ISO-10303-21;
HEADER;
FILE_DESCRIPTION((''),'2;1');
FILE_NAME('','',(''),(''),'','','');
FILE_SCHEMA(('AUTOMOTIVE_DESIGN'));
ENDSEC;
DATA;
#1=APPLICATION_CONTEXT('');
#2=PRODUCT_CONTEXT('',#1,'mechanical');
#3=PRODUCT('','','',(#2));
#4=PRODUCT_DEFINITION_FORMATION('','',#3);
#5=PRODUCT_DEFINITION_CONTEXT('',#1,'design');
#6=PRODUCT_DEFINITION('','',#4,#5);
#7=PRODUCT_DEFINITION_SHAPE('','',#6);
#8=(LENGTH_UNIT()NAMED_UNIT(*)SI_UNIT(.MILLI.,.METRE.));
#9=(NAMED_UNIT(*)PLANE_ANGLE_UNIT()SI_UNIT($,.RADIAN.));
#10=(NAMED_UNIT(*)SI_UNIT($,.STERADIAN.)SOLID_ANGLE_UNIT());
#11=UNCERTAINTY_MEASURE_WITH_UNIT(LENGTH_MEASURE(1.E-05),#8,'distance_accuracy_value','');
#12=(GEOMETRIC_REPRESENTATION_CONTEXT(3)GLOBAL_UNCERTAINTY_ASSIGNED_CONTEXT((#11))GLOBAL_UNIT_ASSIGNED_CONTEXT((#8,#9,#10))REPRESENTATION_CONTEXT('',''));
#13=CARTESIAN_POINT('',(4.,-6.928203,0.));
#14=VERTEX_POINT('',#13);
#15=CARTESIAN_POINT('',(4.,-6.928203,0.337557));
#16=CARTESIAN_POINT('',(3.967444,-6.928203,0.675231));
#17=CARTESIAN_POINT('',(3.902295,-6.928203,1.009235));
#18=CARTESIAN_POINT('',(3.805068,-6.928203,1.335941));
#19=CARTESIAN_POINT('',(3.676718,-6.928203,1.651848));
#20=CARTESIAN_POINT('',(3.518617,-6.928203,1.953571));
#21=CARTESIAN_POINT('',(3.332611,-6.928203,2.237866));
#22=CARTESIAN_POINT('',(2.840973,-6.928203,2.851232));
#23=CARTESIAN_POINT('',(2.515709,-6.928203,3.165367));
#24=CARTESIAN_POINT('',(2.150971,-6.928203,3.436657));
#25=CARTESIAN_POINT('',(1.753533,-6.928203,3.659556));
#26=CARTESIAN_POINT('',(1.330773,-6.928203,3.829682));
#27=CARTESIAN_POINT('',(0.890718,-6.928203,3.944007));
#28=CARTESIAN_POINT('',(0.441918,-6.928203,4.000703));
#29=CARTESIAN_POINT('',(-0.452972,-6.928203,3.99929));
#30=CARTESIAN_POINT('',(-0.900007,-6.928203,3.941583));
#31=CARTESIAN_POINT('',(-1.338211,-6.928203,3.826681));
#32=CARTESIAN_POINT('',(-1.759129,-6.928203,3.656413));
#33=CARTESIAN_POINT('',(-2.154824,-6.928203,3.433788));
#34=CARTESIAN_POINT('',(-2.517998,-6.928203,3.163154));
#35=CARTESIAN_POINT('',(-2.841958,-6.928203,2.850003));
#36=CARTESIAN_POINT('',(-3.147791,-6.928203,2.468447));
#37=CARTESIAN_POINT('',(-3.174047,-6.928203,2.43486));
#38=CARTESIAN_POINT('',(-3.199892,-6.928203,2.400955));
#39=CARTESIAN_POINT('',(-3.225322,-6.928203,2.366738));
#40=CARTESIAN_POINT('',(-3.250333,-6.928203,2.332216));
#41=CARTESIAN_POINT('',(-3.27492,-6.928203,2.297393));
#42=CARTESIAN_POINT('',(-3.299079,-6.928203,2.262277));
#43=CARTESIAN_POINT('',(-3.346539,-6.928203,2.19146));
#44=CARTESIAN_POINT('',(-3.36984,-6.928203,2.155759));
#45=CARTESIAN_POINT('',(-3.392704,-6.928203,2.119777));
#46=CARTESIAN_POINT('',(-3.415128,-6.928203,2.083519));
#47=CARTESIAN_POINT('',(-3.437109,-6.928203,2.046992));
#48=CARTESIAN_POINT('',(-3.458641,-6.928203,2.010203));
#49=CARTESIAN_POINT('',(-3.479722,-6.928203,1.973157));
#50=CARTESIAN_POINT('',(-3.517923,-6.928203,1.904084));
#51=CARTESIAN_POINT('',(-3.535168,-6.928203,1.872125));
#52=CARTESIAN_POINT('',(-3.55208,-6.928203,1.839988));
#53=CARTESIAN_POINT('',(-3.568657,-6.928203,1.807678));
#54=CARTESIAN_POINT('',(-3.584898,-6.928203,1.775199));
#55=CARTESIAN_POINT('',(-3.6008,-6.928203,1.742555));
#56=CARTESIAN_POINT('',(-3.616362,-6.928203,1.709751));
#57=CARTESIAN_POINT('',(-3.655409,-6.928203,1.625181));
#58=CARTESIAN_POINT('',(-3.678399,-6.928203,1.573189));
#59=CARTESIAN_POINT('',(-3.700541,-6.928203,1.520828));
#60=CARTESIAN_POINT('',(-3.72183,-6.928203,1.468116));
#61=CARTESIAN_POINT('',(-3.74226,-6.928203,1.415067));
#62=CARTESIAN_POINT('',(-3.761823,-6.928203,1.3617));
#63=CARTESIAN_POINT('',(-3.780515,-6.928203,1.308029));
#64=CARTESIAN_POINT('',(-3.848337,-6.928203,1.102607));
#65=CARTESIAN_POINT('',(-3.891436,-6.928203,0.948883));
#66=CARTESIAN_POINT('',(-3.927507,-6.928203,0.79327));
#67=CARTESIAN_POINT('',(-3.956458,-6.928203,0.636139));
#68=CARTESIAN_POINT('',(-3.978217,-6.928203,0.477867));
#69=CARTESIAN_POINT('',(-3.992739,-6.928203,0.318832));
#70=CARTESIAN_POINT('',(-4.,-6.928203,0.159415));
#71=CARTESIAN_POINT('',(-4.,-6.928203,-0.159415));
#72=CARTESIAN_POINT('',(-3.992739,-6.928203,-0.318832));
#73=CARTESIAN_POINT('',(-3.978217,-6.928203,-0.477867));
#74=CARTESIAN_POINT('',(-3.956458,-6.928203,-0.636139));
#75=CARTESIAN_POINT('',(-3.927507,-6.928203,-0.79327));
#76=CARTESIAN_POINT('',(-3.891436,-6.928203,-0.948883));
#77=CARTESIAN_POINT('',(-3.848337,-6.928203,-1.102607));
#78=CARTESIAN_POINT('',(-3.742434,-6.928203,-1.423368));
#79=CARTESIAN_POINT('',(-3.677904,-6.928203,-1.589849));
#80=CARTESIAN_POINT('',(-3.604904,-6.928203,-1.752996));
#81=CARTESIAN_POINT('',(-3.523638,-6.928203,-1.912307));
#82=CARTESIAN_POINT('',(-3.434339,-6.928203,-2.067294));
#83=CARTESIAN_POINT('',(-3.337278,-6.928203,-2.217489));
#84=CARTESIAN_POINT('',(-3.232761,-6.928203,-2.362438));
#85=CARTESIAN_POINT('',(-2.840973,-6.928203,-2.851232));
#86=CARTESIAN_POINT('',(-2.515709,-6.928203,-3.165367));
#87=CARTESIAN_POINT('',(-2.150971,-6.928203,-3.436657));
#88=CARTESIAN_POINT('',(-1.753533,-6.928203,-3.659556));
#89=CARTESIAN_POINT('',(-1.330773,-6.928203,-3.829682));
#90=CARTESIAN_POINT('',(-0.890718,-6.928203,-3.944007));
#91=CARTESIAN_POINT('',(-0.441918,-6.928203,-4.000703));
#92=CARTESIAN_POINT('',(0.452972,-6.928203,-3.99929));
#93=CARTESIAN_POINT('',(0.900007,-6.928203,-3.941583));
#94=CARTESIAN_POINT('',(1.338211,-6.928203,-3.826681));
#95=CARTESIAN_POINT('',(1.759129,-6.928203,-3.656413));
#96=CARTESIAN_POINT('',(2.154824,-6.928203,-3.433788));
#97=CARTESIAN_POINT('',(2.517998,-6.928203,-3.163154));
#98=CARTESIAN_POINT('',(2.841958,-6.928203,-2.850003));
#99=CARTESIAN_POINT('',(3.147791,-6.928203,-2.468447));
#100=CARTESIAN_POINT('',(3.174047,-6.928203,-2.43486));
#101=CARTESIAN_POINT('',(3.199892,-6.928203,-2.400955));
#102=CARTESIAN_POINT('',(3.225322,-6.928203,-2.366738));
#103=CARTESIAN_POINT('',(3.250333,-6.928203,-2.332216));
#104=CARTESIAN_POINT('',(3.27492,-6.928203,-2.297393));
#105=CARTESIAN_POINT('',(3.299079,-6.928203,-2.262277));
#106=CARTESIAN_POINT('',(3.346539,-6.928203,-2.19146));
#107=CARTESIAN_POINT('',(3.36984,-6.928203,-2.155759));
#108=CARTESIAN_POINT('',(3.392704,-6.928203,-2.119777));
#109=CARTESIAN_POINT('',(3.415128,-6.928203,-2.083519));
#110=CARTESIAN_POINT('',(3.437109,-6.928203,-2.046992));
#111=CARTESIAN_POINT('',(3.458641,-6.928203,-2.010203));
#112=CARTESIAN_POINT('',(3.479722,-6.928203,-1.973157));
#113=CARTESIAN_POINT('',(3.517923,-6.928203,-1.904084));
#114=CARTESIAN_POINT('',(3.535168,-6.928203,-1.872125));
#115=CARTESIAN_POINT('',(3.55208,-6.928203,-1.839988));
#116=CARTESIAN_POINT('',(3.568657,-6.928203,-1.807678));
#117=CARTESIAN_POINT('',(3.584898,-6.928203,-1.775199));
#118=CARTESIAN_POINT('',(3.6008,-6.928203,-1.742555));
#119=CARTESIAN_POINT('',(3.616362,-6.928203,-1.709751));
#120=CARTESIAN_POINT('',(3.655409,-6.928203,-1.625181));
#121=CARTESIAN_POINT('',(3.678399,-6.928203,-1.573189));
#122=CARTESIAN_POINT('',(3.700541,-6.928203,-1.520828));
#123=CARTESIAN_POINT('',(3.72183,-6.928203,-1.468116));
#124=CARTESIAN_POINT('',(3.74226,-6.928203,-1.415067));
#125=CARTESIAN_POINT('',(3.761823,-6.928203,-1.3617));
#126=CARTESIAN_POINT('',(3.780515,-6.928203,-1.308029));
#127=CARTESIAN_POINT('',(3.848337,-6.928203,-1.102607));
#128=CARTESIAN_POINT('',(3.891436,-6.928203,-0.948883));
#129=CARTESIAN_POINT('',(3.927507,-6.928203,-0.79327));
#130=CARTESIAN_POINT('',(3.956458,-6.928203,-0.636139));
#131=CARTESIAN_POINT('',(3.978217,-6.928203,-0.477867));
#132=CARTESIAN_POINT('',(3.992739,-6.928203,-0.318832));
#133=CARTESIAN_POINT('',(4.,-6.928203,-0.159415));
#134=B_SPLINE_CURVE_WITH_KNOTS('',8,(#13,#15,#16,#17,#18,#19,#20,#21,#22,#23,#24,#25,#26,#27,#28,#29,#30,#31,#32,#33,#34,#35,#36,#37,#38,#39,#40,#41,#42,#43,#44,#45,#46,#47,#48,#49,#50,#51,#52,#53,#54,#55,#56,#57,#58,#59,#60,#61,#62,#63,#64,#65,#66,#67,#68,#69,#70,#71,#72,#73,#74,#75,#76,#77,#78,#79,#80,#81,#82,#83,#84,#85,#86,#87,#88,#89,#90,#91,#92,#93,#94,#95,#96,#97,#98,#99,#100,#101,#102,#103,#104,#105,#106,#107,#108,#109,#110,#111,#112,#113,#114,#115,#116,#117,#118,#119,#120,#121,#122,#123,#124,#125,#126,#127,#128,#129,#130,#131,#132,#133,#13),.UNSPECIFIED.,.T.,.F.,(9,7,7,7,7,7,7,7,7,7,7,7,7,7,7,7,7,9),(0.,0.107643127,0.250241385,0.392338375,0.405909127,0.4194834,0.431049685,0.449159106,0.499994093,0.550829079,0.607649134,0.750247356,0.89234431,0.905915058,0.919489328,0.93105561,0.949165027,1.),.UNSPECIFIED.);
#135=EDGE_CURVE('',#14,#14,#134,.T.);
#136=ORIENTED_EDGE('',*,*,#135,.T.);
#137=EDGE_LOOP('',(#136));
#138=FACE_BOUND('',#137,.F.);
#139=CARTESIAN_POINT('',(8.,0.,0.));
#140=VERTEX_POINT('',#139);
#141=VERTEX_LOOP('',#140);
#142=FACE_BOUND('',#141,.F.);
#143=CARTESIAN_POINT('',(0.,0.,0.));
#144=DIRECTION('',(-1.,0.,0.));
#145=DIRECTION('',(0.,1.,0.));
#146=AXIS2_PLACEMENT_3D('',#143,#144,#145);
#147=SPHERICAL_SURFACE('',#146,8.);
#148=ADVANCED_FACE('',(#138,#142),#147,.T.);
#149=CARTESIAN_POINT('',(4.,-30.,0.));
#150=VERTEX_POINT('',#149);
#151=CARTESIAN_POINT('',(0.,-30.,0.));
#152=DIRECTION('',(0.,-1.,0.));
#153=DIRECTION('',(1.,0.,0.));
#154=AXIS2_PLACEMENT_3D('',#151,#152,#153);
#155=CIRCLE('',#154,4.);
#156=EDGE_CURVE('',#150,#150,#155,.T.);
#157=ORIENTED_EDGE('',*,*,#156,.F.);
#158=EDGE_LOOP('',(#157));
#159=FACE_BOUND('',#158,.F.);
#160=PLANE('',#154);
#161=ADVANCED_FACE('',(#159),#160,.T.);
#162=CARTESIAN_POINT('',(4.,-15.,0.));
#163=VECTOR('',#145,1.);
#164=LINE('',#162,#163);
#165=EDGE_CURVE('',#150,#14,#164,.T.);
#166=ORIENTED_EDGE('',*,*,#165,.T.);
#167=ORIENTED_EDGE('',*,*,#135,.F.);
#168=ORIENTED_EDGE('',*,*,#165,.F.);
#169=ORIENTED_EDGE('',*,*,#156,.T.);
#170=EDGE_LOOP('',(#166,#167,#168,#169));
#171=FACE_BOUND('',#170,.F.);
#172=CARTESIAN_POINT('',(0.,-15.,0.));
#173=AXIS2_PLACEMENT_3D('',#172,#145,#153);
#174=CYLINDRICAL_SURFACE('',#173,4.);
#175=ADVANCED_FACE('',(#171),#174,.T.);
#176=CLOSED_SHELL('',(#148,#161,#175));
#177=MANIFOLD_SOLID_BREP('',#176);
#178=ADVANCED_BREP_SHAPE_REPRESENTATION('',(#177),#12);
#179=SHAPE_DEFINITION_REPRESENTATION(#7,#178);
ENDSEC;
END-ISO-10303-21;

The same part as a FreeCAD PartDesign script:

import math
import FreeCAD as App
import Part
import Sketcher

V = App.Vector


def add_polygon(sketch, points):
    """Adds a closed chain of lines whose ends are joined by coincident constraints."""
    first, n = sketch.GeometryCount, len(points)
    for a, b in zip(points, points[1:] + points[:1]):
        sketch.addGeometry(Part.LineSegment(App.Vector(*a, 0), App.Vector(*b, 0)), False)
    for i in range(n):
        sketch.addConstraint(Sketcher.Constraint("Coincident", first + i, 2, first + (i + 1) % n, 1))

doc = App.newDocument("Part")
body = doc.addObject("PartDesign::Body", "Body")

sketch1 = body.newObject("Sketcher::SketchObject", "Sketch")
sketch1.AttachmentSupport = (doc.getObject("XY_Plane"), [""])
sketch1.MapMode = "FlatFace"
sketch1.addGeometry([
    Part.LineSegment(V(-8, 0, 0), V(8, 0, 0)),
    Part.ArcOfCircle(Part.Circle(V(0, 0, 0), V(0, 0, 1), 8), math.radians(0), math.radians(180)),
], False)
sketch1.addConstraint([
    Sketcher.Constraint("Coincident", 0, 1, 1, 2),
    Sketcher.Constraint("Coincident", 1, 1, 0, 2),
    Sketcher.Constraint("Horizontal", 0),
    Sketcher.Constraint("Coincident", 1, 3, -1, 1),
    Sketcher.Constraint("PointOnObject", 0, 1, -1),
    Sketcher.Constraint("Radius", 1, 8.0),
])
revolution = body.newObject("PartDesign::Revolution", "Revolution")
revolution.Profile = sketch1
revolution.ReferenceAxis = (sketch1, ["H_Axis"])
revolution.Angle = 360

sketch2 = body.newObject("Sketcher::SketchObject", "Sketch001")
sketch2.AttachmentSupport = (doc.getObject("XY_Plane"), [""])
sketch2.MapMode = "FlatFace"
add_polygon(sketch2, [(0, 0), (0, -30), (4, -30), (4, 0)])
sketch2.addConstraint([
    Sketcher.Constraint("Vertical", 0),
    Sketcher.Constraint("Horizontal", 1),
    Sketcher.Constraint("Vertical", 2),
    Sketcher.Constraint("Horizontal", 3),
    Sketcher.Constraint("Coincident", 3, 2, -1, 1),
    Sketcher.Constraint("DistanceX", 1, 1, 1, 2, 4.0),
    Sketcher.Constraint("DistanceY", 0, 2, 0, 1, 30.0),
])
revolution2 = body.newObject("PartDesign::Revolution", "Revolution001")
revolution2.Profile = sketch2
revolution2.ReferenceAxis = (sketch2, ["V_Axis"])
revolution2.Angle = 360

doc.recompute()
